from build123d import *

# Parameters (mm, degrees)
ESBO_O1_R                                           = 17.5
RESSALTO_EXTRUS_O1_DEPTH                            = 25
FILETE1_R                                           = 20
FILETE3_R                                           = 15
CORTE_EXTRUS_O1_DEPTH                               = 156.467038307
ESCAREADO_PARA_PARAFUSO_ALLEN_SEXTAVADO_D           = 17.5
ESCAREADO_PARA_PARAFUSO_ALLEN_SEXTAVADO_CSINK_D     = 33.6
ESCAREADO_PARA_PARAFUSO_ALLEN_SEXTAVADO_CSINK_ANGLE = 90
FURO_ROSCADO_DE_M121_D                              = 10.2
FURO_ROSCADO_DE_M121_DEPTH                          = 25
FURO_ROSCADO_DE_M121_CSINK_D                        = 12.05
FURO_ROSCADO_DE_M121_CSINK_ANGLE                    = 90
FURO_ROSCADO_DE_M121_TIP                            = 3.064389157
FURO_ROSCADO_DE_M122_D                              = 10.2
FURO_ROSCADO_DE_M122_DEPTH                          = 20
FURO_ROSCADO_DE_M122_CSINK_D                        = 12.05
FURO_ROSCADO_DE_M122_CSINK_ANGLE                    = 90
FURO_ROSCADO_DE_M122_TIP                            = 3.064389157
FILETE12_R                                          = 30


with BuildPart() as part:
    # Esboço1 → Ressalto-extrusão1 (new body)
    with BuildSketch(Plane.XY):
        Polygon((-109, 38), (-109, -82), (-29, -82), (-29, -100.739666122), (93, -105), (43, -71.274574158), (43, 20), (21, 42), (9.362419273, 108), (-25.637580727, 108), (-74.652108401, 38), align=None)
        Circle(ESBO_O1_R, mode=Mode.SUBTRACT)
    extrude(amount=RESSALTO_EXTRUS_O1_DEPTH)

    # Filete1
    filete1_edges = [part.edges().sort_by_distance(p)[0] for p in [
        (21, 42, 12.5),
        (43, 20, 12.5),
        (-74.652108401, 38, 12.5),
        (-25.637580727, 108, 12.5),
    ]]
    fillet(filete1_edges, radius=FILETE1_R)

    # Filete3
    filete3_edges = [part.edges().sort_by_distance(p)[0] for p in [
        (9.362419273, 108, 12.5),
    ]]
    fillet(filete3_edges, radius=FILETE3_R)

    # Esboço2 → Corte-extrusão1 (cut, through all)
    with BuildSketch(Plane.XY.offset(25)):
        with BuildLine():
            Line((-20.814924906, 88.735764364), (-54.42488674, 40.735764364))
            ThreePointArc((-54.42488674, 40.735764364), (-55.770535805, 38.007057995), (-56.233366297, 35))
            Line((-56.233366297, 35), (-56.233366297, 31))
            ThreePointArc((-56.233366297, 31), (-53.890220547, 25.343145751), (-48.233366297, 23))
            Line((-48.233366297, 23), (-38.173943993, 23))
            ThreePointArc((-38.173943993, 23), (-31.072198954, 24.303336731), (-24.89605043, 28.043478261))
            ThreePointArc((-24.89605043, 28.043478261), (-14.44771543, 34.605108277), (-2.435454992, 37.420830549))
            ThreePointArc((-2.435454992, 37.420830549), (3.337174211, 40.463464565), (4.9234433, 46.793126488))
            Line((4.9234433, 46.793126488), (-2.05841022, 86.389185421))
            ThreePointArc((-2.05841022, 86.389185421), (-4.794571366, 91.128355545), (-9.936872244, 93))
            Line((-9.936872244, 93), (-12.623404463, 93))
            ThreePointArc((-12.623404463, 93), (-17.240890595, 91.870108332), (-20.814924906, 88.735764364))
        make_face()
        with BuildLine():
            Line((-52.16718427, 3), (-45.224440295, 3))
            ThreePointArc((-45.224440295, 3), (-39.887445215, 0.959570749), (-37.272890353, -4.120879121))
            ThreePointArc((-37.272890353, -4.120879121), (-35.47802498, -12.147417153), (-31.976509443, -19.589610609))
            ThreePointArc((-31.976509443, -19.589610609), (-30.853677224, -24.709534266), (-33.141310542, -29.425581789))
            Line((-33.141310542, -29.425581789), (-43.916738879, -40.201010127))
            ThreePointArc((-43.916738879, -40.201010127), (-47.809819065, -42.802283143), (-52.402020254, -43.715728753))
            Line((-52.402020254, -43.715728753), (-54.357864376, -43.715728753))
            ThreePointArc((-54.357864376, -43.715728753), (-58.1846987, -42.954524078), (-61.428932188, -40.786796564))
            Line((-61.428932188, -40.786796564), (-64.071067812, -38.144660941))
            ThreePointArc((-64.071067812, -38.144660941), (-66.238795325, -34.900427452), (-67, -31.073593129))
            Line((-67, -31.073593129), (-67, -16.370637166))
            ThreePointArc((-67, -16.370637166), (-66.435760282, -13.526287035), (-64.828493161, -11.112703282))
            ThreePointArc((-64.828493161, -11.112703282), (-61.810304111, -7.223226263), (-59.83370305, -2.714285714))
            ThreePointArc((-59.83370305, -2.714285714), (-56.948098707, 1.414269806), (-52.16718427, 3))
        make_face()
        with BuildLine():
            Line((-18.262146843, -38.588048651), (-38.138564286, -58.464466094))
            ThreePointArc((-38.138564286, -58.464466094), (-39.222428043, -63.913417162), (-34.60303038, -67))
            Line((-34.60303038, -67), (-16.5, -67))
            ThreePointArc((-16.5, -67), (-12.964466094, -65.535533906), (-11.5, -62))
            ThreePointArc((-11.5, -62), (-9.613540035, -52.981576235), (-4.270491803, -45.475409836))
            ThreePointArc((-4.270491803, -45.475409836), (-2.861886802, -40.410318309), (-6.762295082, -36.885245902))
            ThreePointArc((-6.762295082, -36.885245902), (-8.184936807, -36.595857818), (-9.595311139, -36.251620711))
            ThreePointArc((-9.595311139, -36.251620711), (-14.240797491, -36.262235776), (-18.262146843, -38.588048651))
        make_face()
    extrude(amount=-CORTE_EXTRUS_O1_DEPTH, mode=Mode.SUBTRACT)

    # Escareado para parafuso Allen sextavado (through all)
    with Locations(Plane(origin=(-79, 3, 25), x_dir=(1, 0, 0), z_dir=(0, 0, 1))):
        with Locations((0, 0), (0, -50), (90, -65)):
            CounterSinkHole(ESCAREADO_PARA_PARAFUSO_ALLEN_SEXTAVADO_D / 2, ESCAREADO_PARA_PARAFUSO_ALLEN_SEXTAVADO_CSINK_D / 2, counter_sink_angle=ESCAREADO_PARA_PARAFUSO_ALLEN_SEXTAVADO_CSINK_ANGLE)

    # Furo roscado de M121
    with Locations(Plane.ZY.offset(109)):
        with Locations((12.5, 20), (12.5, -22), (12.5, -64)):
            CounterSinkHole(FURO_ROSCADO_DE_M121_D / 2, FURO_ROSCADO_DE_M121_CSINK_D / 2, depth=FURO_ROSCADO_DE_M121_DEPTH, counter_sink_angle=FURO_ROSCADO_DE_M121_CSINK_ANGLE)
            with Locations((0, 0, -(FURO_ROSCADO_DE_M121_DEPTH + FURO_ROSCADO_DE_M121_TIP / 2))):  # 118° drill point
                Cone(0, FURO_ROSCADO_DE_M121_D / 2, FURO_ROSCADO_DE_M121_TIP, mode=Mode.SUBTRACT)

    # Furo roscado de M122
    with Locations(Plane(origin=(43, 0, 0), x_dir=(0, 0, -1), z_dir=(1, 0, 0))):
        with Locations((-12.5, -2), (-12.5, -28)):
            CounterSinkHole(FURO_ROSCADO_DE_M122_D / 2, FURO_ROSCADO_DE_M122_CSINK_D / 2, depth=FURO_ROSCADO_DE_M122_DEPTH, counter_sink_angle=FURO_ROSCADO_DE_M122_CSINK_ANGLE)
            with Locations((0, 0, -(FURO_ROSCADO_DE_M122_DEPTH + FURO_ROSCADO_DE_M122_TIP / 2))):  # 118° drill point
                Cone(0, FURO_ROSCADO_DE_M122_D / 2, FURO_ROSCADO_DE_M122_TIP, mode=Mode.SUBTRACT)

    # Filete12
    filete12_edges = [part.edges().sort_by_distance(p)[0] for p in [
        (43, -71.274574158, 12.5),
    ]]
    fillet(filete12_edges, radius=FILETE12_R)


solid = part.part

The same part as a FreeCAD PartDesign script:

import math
import FreeCAD as App
import Part
import Sketcher

V = App.Vector
Q = App.Units.Quantity


def edges_at(feature, points):
    """Names of the edges that pass closest to the given points."""
    edges = feature.Shape.Edges
    near = lambda p: min(range(len(edges)), key=lambda i: edges[i].distToShape(Part.Vertex(*p))[0])
    return sorted({f"Edge{near(p) + 1}" for p in points})


def add_polygon(sketch, points):
    """Adds a closed chain of lines whose ends are joined by coincident constraints."""
    first, n = sketch.GeometryCount, len(points)
    for a, b in zip(points, points[1:] + points[:1]):
        sketch.addGeometry(Part.LineSegment(App.Vector(*a, 0), App.Vector(*b, 0)), False)
    for i in range(n):
        sketch.addConstraint(Sketcher.Constraint("Coincident", first + i, 2, first + (i + 1) % n, 1))

doc = App.newDocument("Part")
params = doc.addObject("Spreadsheet::Sheet", "Params")
for row, (alias, value) in enumerate([
    ("sketch1_diameter", "35 mm"),
    ("sketch1_width", "80 mm"),
    ("sketch1_width2", "35 mm"),
    ("sketch1_height", "120 mm"),
    ("pad1_length", "25 mm"),
    ("fillet_radius", "20 mm"),
    ("fillet2_radius", "15 mm"),
    ("sketch2_radius", "10 mm"),
    ("sketch2_radius2", "8 mm"),
    ("sketch2_radius3", "20 mm"),
    ("sketch2_radius4", "12 mm"),
    ("sketch2_radius5", "5 mm"),
    ("sketch3_diameter", "17.5 mm"),
    ("hole_diameter", "17.5 mm"),
    ("hole_csink_diameter", "33.6 mm"),
    ("sketch4_diameter", "10.2 mm"),
    ("hole2_diameter", "10.2 mm"),
    ("hole2_depth", "25 mm"),
    ("hole2_csink_diameter", "12.05 mm"),
    ("sketch5_diameter", "10.2 mm"),
    ("hole3_diameter", "10.2 mm"),
    ("hole3_depth", "20 mm"),
    ("hole3_csink_diameter", "12.05 mm"),
    ("fillet3_radius", "30 mm"),
], start=1):
    params.set(f"A{row}", alias)
    params.set(f"B{row}", "=" + value)
    params.setAlias(f"B{row}", alias)

body = doc.addObject("PartDesign::Body", "Body")

# Sketch on XY plane
sketch1 = body.newObject("Sketcher::SketchObject", "Sketch")
sketch1.AttachmentSupport = (doc.getObject("XY_Plane"), [""])
sketch1.MapMode = "FlatFace"
add_polygon(sketch1, [(-109, 38), (-109, -82), (-29, -82), (-29, -101), (93, -105), (43, -71), (43, 20), (21, 42), (9, 108), (-26, 108), (-75, 38)])  # lines 0-10
sketch1.addGeometry(Part.Circle(V(0, 0, 0), V(0, 0, 1), 18), False)  # 11
sketch1.addConstraint(Sketcher.Constraint("Vertical", 0))
sketch1.addConstraint(Sketcher.Constraint("Horizontal", 1))
sketch1.addConstraint(Sketcher.Constraint("Vertical", 2))
sketch1.addConstraint(Sketcher.Constraint("Vertical", 5))
sketch1.addConstraint(Sketcher.Constraint("Horizontal", 8))
sketch1.addConstraint(Sketcher.Constraint("Horizontal", 10))
sketch1.addConstraint(Sketcher.Constraint("Coincident", 11, 3, -1, 1))
sketch1.addConstraint(Sketcher.Constraint("Diameter", 11, 35.0))
sketch1.addConstraint(Sketcher.Constraint("DistanceX", 1, 1, 1, 2, 80.0))
sketch1.addConstraint(Sketcher.Constraint("DistanceX", 8, 2, 8, 1, 35.0))
sketch1.addConstraint(Sketcher.Constraint("DistanceY", 0, 2, 0, 1, 120.0))
sketch1.addConstraint(Sketcher.Constraint("Angle", 3, Q("-2 deg")))
sketch1.addConstraint(Sketcher.Constraint("Angle", 4, Q("146 deg")))
sketch1.addConstraint(Sketcher.Constraint("Angle", 6, Q("135 deg")))
sketch1.addConstraint(Sketcher.Constraint("Angle", 7, Q("100 deg")))
sketch1.addConstraint(Sketcher.Constraint("Angle", 9, Q("-125 deg")))
sketch1.addConstraint(Sketcher.Constraint("DistanceX", 0, 2, -1, 1, 109.0))
sketch1.addConstraint(Sketcher.Constraint("DistanceY", 0, 2, -1, 1, 82.0))
sketch1.addConstraint(Sketcher.Constraint("DistanceX", -1, 1, 3, 2, 93.0))
sketch1.addConstraint(Sketcher.Constraint("DistanceY", 3, 2, -1, 1, 105.0))
sketch1.addConstraint(Sketcher.Constraint("DistanceX", -1, 1, 4, 2, 43.0))
sketch1.addConstraint(Sketcher.Constraint("DistanceY", -1, 1, 5, 2, 20.0))
sketch1.addConstraint(Sketcher.Constraint("DistanceX", -1, 1, 6, 2, 21.0))
sketch1.addConstraint(Sketcher.Constraint("DistanceY", -1, 1, 7, 2, 108.0))
sketch1.setExpression("Constraints[18]", "Params.sketch1_diameter")
sketch1.setExpression("Constraints[19]", "Params.sketch1_width")
sketch1.setExpression("Constraints[20]", "Params.sketch1_width2")
sketch1.setExpression("Constraints[21]", "Params.sketch1_height")
pad1 = body.newObject("PartDesign::Pad", "Pad")
pad1.Profile = sketch1
pad1.setExpression("Length", "Params.pad1_length")
doc.recompute()

fillet = body.newObject("PartDesign::Fillet", "Fillet")
fillet.Base = (pad1, edges_at(pad1, [
    (21, 42, 12.5),
    (43, 20, 12.5),
    (-74.652, 38, 12.5),
    (-25.638, 108, 12.5),
]))
fillet.setExpression("Radius", "Params.fillet_radius")
doc.recompute()

fillet2 = body.newObject("PartDesign::Fillet", "Fillet001")
fillet2.Base = (fillet, edges_at(fillet, [(9.362, 108, 12.5)]))
fillet2.setExpression("Radius", "Params.fillet2_radius")

# Sketch on XY plane
sketch2 = body.newObject("Sketcher::SketchObject", "Sketch001")
sketch2.AttachmentSupport = (doc.getObject("XY_Plane"), [""])
sketch2.MapMode = "FlatFace"
sketch2.AttachmentOffset = App.Placement(V(0, 0, 25), App.Rotation())
sketch2.addGeometry(Part.LineSegment(V(-20.8, 88.7, 0), V(-54.4, 40.7, 0)), False)
sketch2.addGeometry(Part.ArcOfCircle(Part.Circle(V(-46.2, 35, 0), V(0, 0, 1), 10), math.radians(145), math.radians(180)), False)
sketch2.addGeometry(Part.LineSegment(V(-56.2, 35, 0), V(-56.2, 31, 0)), False)
sketch2.addGeometry(Part.ArcOfCircle(Part.Circle(V(-48.2, 31, 0), V(0, 0, 1), 8), math.radians(180), math.radians(270)), False)
sketch2.addGeometry(Part.LineSegment(V(-48.2, 23, 0), V(-38.2, 23, 0)), False)
sketch2.addGeometry(Part.ArcOfCircle(Part.Circle(V(-38.2, 43, 0), V(0, 0, 1), 20), math.radians(-90), math.radians(-48)), False)
sketch2.addGeometry(Part.ArcOfCircle(Part.Circle(V(0, 0, 0), V(0, 0, 1), 37.5), math.radians(94), math.radians(132)), False)
sketch2.addGeometry(Part.ArcOfCircle(Part.Circle(V(-3, 45.4, 0), V(0, 0, 1), 8), math.radians(-86), math.radians(10)), False)
sketch2.addGeometry(Part.LineSegment(V(4.9, 46.8, 0), V(-2.1, 86.4, 0)), False)
sketch2.addGeometry(Part.ArcOfCircle(Part.Circle(V(-9.9, 85, 0), V(0, 0, 1), 8), math.radians(10), math.radians(90)), False)
sketch2.addGeometry(Part.LineSegment(V(-9.9, 93, 0), V(-12.6, 93, 0)), False)
sketch2.addGeometry(Part.ArcOfCircle(Part.Circle(V(-12.6, 83, 0), V(0, 0, 1), 10), math.radians(90), math.radians(145)), False)
sketch2.addGeometry(Part.LineSegment(V(-45.2, 3, 0), V(-52.2, 3, 0)), False)
sketch2.addGeometry(Part.ArcOfCircle(Part.Circle(V(-52.2, -5, 0), V(0, 0, 1), 8), math.radians(90), math.radians(163)), False)
sketch2.addGeometry(Part.ArcOfCircle(Part.Circle(V(-79, 3, 0), V(0, 0, 1), 20), math.radians(-45), math.radians(-17)), False)
sketch2.addGeometry(Part.ArcOfCircle(Part.Circle(V(-59.5, -16.4, 0), V(0, 0, 1), 7.5), math.radians(135), math.radians(180)), False)
sketch2.addGeometry(Part.LineSegment(V(-67, -16.4, 0), V(-67, -31.1, 0)), False)
sketch2.addGeometry(Part.ArcOfCircle(Part.Circle(V(-57, -31.1, 0), V(0, 0, 1), 10), math.radians(-180), math.radians(-135)), False)
sketch2.addGeometry(Part.LineSegment(V(-64.1, -38.1, 0), V(-61.4, -40.8, 0)), False)
sketch2.addGeometry(Part.ArcOfCircle(Part.Circle(V(-54.4, -33.7, 0), V(0, 0, 1), 10), math.radians(-135), math.radians(-90)), False)
sketch2.addGeometry(Part.LineSegment(V(-54.4, -43.7, 0), V(-52.4, -43.7, 0)), False)
sketch2.addGeometry(Part.ArcOfCircle(Part.Circle(V(-52.4, -31.7, 0), V(0, 0, 1), 12), math.radians(-90), math.radians(-45)), False)
sketch2.addGeometry(Part.LineSegment(V(-43.9, -40.2, 0), V(-33.1, -29.4, 0)), False)
sketch2.addGeometry(Part.ArcOfCircle(Part.Circle(V(-38.8, -23.8, 0), V(0, 0, 1), 8), math.radians(-45), math.radians(31)), False)
sketch2.addGeometry(Part.ArcOfCircle(Part.Circle(V(0, 0, 0), V(0, 0, 1), 37.5), math.radians(-174), math.radians(-149)), False)
sketch2.addGeometry(Part.ArcOfCircle(Part.Circle(V(-45.2, -5, 0), V(0, 0, 1), 8), math.radians(6), math.radians(90)), False)
sketch2.addGeometry(Part.LineSegment(V(-18.3, -38.6, 0), V(-38.1, -58.5, 0)), False)
sketch2.addGeometry(Part.ArcOfCircle(Part.Circle(V(-34.6, -62, 0), V(0, 0, 1), 5), math.radians(135), math.radians(270)), False)
sketch2.addGeometry(Part.LineSegment(V(-34.6, -67, 0), V(-16.5, -67, 0)), False)
sketch2.addGeometry(Part.ArcOfCircle(Part.Circle(V(-16.5, -62, 0), V(0, 0, 1), 5), math.radians(-90), math.radians(0)), False)
sketch2.addGeometry(Part.ArcOfCircle(Part.Circle(V(11, -62, 0), V(0, 0, 1), 22.5), math.radians(133), math.radians(180)), False)
sketch2.addGeometry(Part.ArcOfCircle(Part.Circle(V(-7.7, -41.8, 0), V(0, 0, 1), 5), math.radians(-47), math.radians(80)), False)
sketch2.addGeometry(Part.ArcOfCircle(Part.Circle(V(0, 0, 0), V(0, 0, 1), 37.5), math.radians(-104.83), math.radians(-100.39)), False)
sketch2.addGeometry(Part.ArcOfCircle(Part.Circle(V(-11.9, -45, 0), V(0, 0, 1), 9), math.radians(75), math.radians(135)), False)
sketch2.addConstraint(Sketcher.Constraint("Tangent", 0, 2, 1, 1))
sketch2.addConstraint(Sketcher.Constraint("Tangent", 1, 2, 2, 1))
sketch2.addConstraint(Sketcher.Constraint("Tangent", 2, 2, 3, 1))
sketch2.addConstraint(Sketcher.Constraint("Tangent", 3, 2, 4, 1))
sketch2.addConstraint(Sketcher.Constraint("Tangent", 4, 2, 5, 1))
sketch2.addConstraint(Sketcher.Constraint("Tangent", 5, 2, 6, 2))
sketch2.addConstraint(Sketcher.Constraint("Tangent", 6, 1, 7, 1))
sketch2.addConstraint(Sketcher.Constraint("Tangent", 7, 2, 8, 1))
sketch2.addConstraint(Sketcher.Constraint("Tangent", 8, 2, 9, 1))
sketch2.addConstraint(Sketcher.Constraint("Tangent", 9, 2, 10, 1))
sketch2.addConstraint(Sketcher.Constraint("Tangent", 10, 2, 11, 1))
sketch2.addConstraint(Sketcher.Constraint("Tangent", 11, 2, 0, 1))
sketch2.addConstraint(Sketcher.Constraint("Tangent", 12, 2, 13, 1))
sketch2.addConstraint(Sketcher.Constraint("Tangent", 13, 2, 14, 2))
sketch2.addConstraint(Sketcher.Constraint("Tangent", 14, 1, 15, 1))
sketch2.addConstraint(Sketcher.Constraint("Tangent", 15, 2, 16, 1))
sketch2.addConstraint(Sketcher.Constraint("Tangent", 16, 2, 17, 1))
sketch2.addConstraint(Sketcher.Constraint("Tangent", 17, 2, 18, 1))
sketch2.addConstraint(Sketcher.Constraint("Tangent", 18, 2, 19, 1))
sketch2.addConstraint(Sketcher.Constraint("Tangent", 19, 2, 20, 1))
sketch2.addConstraint(Sketcher.Constraint("Tangent", 20, 2, 21, 1))
sketch2.addConstraint(Sketcher.Constraint("Tangent", 21, 2, 22, 1))
sketch2.addConstraint(Sketcher.Constraint("Tangent", 22, 2, 23, 1))
sketch2.addConstraint(Sketcher.Constraint("Tangent", 23, 2, 24, 2))
sketch2.addConstraint(Sketcher.Constraint("Tangent", 24, 1, 25, 1))
sketch2.addConstraint(Sketcher.Constraint("Tangent", 25, 2, 12, 1))
sketch2.addConstraint(Sketcher.Constraint("Tangent", 26, 2, 27, 1))
sketch2.addConstraint(Sketcher.Constraint("Tangent", 27, 2, 28, 1))
sketch2.addConstraint(Sketcher.Constraint("Tangent", 28, 2, 29, 1))
sketch2.addConstraint(Sketcher.Constraint("Tangent", 29, 2, 30, 2))
sketch2.addConstraint(Sketcher.Constraint("Tangent", 30, 1, 31, 1))
sketch2.addConstraint(Sketcher.Constraint("Tangent", 31, 2, 32, 2))
sketch2.addConstraint(Sketcher.Constraint("Tangent", 32, 1, 33, 1))
sketch2.addConstraint(Sketcher.Constraint("Tangent", 33, 2, 26, 1))
sketch2.addConstraint(Sketcher.Constraint("Vertical", 2))
sketch2.addConstraint(Sketcher.Constraint("Horizontal", 4))
sketch2.addConstraint(Sketcher.Constraint("Horizontal", 10))
sketch2.addConstraint(Sketcher.Constraint("Horizontal", 12))
sketch2.addConstraint(Sketcher.Constraint("Vertical", 16))
sketch2.addConstraint(Sketcher.Constraint("Horizontal", 20))
sketch2.addConstraint(Sketcher.Constraint("Horizontal", 28))
sketch2.addConstraint(Sketcher.Constraint("Coincident", 6, 3, -1, 1))
sketch2.addConstraint(Sketcher.Constraint("Coincident", 24, 3, -1, 1))
sketch2.addConstraint(Sketcher.Constraint("Coincident", 32, 3, -1, 1))
sketch2.addConstraint(Sketcher.Constraint("Equal", 3, 7))
sketch2.addConstraint(Sketcher.Constraint("Equal", 7, 9))
sketch2.addConstraint(Sketcher.Constraint("Equal", 1, 11))
sketch2.addConstraint(Sketcher.Constraint("Equal", 9, 13))
sketch2.addConstraint(Sketcher.Constraint("Equal", 5, 14))
sketch2.addConstraint(Sketcher.Constraint("Equal", 11, 17))
sketch2.addConstraint(Sketcher.Constraint("Equal", 17, 19))
sketch2.addConstraint(Sketcher.Constraint("Equal", 13, 23))
sketch2.addConstraint(Sketcher.Constraint("Equal", 6, 24))
sketch2.addConstraint(Sketcher.Constraint("Equal", 23, 25))
sketch2.addConstraint(Sketcher.Constraint("Equal", 27, 29))
sketch2.addConstraint(Sketcher.Constraint("Equal", 29, 31))
sketch2.addConstraint(Sketcher.Constraint("Equal", 24, 32))
sketch2.addConstraint(Sketcher.Constraint("Perpendicular", 18, 22))
sketch2.addConstraint(Sketcher.Constraint("Parallel", 22, 26))
sketch2.addConstraint(Sketcher.Constraint("Horizontal", 29, 3, 30, 3))
sketch2.addConstraint(Sketcher.Constraint("Horizontal", 14, 3, 12, 2))
sketch2.addConstraint(Sketcher.Constraint("Radius", 1, 10.0))
sketch2.addConstraint(Sketcher.Constraint("Radius", 3, 8.0))
sketch2.addConstraint(Sketcher.Constraint("Radius", 5, 20.0))
sketch2.addConstraint(Sketcher.Constraint("Radius", 21, 12.0))
sketch2.addConstraint(Sketcher.Constraint("Radius", 27, 5.0))
sketch2.addConstraint(Sketcher.Constraint("Radius", 33, 9.0))
sketch2.addConstraint(Sketcher.Constraint("Radius", 6, 37.5))
sketch2.addConstraint(Sketcher.Constraint("Radius", 30, 22.5))
sketch2.addConstraint(Sketcher.Constraint("DistanceY", 2, 2, 2, 1, 4.0))
sketch2.addConstraint(Sketcher.Constraint("Angle", 0, Q("-125 deg")))
sketch2.addConstraint(Sketcher.Constraint("Angle", 8, Q("100 deg")))
sketch2.addConstraint(Sketcher.Constraint("Angle", 18, Q("-45 deg")))
sketch2.addConstraint(Sketcher.Constraint("DistanceY", -1, 1, 1, 3, 35.0))
sketch2.addConstraint(Sketcher.Constraint("DistanceY", -1, 1, 9, 3, 85.0))
sketch2.addConstraint(Sketcher.Constraint("DistanceY", 13, 3, -1, 1, 5.0))
sketch2.addConstraint(Sketcher.Constraint("DistanceX", 14, 3, -1, 1, 79.0))
sketch2.addConstraint(Sketcher.Constraint("DistanceX", 17, 3, -1, 1, 57.0))
sketch2.addConstraint(Sketcher.Constraint("DistanceY", 27, 3, -1, 1, 62.0))
sketch2.addConstraint(Sketcher.Constraint("DistanceX", -1, 1, 30, 3, 11.0))
sketch2.addConstraint(Sketcher.Constraint("Radius", 15, 7.451349))
sketch2.addConstraint(Sketcher.Constraint("DistanceY", 21, 3, 23, 3, 7.947001))
sketch2.addConstraint(Sketcher.Constraint("DistanceX", 22, 2, 32, 1, 23.545999))
sketch2.addConstraint(Sketcher.Constraint("Distance", 26, 28.109499))
sketch2.addConstraint(Sketcher.Constraint("DistanceX", 19, 3, 23, 3, 15.5597))
sketch2.addConstraint(Sketcher.Constraint("DistanceX", 6, 1, 7, 2, 7.358898))
sketch2.addConstraint(Sketcher.Constraint("DistanceX", 4, 1, 4, 2, 10.059422))
sketch2.setExpression("Constraints[61]", "Params.sketch2_radius")
sketch2.setExpression("Constraints[62]", "Params.sketch2_radius2")
sketch2.setExpression("Constraints[63]", "Params.sketch2_radius3")
sketch2.setExpression("Constraints[64]", "Params.sketch2_radius4")
sketch2.setExpression("Constraints[65]", "Params.sketch2_radius5")
pocket1 = body.newObject("PartDesign::Pocket", "Pocket")
pocket1.Profile = sketch2
pocket1.Type = "ThroughAll"

# Sketch on XY plane
sketch3 = body.newObject("Sketcher::SketchObject", "Sketch002")
sketch3.AttachmentSupport = (doc.getObject("XY_Plane"), [""])
sketch3.MapMode = "FlatFace"
sketch3.AttachmentOffset = App.Placement(V(0, 0, 25), App.Rotation())
sketch3.addGeometry(Part.Circle(V(-79, 3, 0), V(0, 0, 1), 9), False)
sketch3.addGeometry(Part.Circle(V(-79, -47, 0), V(0, 0, 1), 9), False)
sketch3.addGeometry(Part.Circle(V(11, -62, 0), V(0, 0, 1), 9), False)
sketch3.addConstraint(Sketcher.Constraint("Equal", 0, 1))
sketch3.addConstraint(Sketcher.Constraint("Equal", 1, 2))
sketch3.addConstraint(Sketcher.Constraint("Vertical", 0, 3, 1, 3))
sketch3.addConstraint(Sketcher.Constraint("Diameter", 0, 17.5))
sketch3.addConstraint(Sketcher.Constraint("DistanceX", 0, 3, -1, 1, 79.0))
sketch3.addConstraint(Sketcher.Constraint("DistanceY", -1, 1, 0, 3, 3.0))
sketch3.addConstraint(Sketcher.Constraint("DistanceY", 1, 3, -1, 1, 47.0))
sketch3.addConstraint(Sketcher.Constraint("DistanceX", -1, 1, 2, 3, 11.0))
sketch3.addConstraint(Sketcher.Constraint("DistanceY", 2, 3, -1, 1, 62.0))
sketch3.setExpression("Constraints[3]", "Params.sketch3_diameter")
doc.recompute()
hole = body.newObject("PartDesign::Hole", "Hole")
hole.Profile = sketch3
hole.ThreadType = "None"
hole.setExpression("Diameter", "Params.hole_diameter")
hole.DepthType = "ThroughAll"
hole.HoleCutType = "Countersink"
hole.setExpression("HoleCutDiameter", "Params.hole_csink_diameter")
hole.HoleCutCountersinkAngle = 90

# Sketch on YZ plane
sketch4 = body.newObject("Sketcher::SketchObject", "Sketch003")
sketch4.AttachmentSupport = (doc.getObject("YZ_Plane"), [""])
sketch4.MapMode = "FlatFace"
sketch4.AttachmentOffset = App.Placement(V(0, 0, -109), App.Rotation())
sketch4.addGeometry(Part.Circle(V(20, 12, 0), V(0, 0, 1), 5), False)
sketch4.addGeometry(Part.Circle(V(-22, 12, 0), V(0, 0, 1), 5), False)
sketch4.addGeometry(Part.Circle(V(-64, 12, 0), V(0, 0, 1), 5), False)
sketch4.addConstraint(Sketcher.Constraint("Equal", 0, 1))
sketch4.addConstraint(Sketcher.Constraint("Equal", 1, 2))
sketch4.addConstraint(Sketcher.Constraint("Horizontal", 0, 3, 1, 3))
sketch4.addConstraint(Sketcher.Constraint("Horizontal", 1, 3, 2, 3))
sketch4.addConstraint(Sketcher.Constraint("Diameter", 0, 10.2))
sketch4.addConstraint(Sketcher.Constraint("DistanceX", -1, 1, 0, 3, 20.0))
sketch4.addConstraint(Sketcher.Constraint("DistanceX", 1, 3, -1, 1, 22.0))
sketch4.addConstraint(Sketcher.Constraint("DistanceX", 2, 3, -1, 1, 64.0))
sketch4.addConstraint(Sketcher.Constraint("DistanceY", -1, 1, 0, 3, 12.5))
sketch4.setExpression("Constraints[4]", "Params.sketch4_diameter")
doc.recompute()
hole2 = body.newObject("PartDesign::Hole", "Hole001")
hole2.Profile = sketch4
hole2.ThreadType = "None"
hole2.setExpression("Diameter", "Params.hole2_diameter")
hole2.DepthType = "Dimension"
hole2.setExpression("Depth", "Params.hole2_depth")
hole2.DrillPoint = "Angled"
hole2.DrillPointAngle = 118
hole2.HoleCutType = "Countersink"
hole2.setExpression("HoleCutDiameter", "Params.hole2_csink_diameter")
hole2.HoleCutCountersinkAngle = 90
hole2.Reversed = True

# Sketch on YZ plane
sketch5 = body.newObject("Sketcher::SketchObject", "Sketch004")
sketch5.AttachmentSupport = (doc.getObject("YZ_Plane"), [""])
sketch5.MapMode = "FlatFace"
sketch5.AttachmentOffset = App.Placement(V(0, 0, 43), App.Rotation())
sketch5.addGeometry(Part.Circle(V(-2, 12, 0), V(0, 0, 1), 5), False)
sketch5.addGeometry(Part.Circle(V(-28, 12, 0), V(0, 0, 1), 5), False)
sketch5.addConstraint(Sketcher.Constraint("Equal", 0, 1))
sketch5.addConstraint(Sketcher.Constraint("Horizontal", 0, 3, 1, 3))
sketch5.addConstraint(Sketcher.Constraint("Diameter", 0, 10.2))
sketch5.addConstraint(Sketcher.Constraint("DistanceX", 0, 3, -1, 1, 2.0))
sketch5.addConstraint(Sketcher.Constraint("DistanceX", 1, 3, -1, 1, 28.0))
sketch5.addConstraint(Sketcher.Constraint("DistanceY", -1, 1, 0, 3, 12.5))
sketch5.setExpression("Constraints[2]", "Params.sketch5_diameter")
doc.recompute()
hole3 = body.newObject("PartDesign::Hole", "Hole002")
hole3.Profile = sketch5
hole3.ThreadType = "None"
hole3.setExpression("Diameter", "Params.hole3_diameter")
hole3.DepthType = "Dimension"
hole3.setExpression("Depth", "Params.hole3_depth")
hole3.DrillPoint = "Angled"
hole3.DrillPointAngle = 118
hole3.HoleCutType = "Countersink"
hole3.setExpression("HoleCutDiameter", "Params.hole3_csink_diameter")
hole3.HoleCutCountersinkAngle = 90
doc.recompute()

fillet3 = body.newObject("PartDesign::Fillet", "Fillet002")
fillet3.Base = (hole3, edges_at(hole3, [(43, -71.275, 12.5)]))
fillet3.setExpression("Radius", "Params.fillet3_radius")

doc.recompute()
